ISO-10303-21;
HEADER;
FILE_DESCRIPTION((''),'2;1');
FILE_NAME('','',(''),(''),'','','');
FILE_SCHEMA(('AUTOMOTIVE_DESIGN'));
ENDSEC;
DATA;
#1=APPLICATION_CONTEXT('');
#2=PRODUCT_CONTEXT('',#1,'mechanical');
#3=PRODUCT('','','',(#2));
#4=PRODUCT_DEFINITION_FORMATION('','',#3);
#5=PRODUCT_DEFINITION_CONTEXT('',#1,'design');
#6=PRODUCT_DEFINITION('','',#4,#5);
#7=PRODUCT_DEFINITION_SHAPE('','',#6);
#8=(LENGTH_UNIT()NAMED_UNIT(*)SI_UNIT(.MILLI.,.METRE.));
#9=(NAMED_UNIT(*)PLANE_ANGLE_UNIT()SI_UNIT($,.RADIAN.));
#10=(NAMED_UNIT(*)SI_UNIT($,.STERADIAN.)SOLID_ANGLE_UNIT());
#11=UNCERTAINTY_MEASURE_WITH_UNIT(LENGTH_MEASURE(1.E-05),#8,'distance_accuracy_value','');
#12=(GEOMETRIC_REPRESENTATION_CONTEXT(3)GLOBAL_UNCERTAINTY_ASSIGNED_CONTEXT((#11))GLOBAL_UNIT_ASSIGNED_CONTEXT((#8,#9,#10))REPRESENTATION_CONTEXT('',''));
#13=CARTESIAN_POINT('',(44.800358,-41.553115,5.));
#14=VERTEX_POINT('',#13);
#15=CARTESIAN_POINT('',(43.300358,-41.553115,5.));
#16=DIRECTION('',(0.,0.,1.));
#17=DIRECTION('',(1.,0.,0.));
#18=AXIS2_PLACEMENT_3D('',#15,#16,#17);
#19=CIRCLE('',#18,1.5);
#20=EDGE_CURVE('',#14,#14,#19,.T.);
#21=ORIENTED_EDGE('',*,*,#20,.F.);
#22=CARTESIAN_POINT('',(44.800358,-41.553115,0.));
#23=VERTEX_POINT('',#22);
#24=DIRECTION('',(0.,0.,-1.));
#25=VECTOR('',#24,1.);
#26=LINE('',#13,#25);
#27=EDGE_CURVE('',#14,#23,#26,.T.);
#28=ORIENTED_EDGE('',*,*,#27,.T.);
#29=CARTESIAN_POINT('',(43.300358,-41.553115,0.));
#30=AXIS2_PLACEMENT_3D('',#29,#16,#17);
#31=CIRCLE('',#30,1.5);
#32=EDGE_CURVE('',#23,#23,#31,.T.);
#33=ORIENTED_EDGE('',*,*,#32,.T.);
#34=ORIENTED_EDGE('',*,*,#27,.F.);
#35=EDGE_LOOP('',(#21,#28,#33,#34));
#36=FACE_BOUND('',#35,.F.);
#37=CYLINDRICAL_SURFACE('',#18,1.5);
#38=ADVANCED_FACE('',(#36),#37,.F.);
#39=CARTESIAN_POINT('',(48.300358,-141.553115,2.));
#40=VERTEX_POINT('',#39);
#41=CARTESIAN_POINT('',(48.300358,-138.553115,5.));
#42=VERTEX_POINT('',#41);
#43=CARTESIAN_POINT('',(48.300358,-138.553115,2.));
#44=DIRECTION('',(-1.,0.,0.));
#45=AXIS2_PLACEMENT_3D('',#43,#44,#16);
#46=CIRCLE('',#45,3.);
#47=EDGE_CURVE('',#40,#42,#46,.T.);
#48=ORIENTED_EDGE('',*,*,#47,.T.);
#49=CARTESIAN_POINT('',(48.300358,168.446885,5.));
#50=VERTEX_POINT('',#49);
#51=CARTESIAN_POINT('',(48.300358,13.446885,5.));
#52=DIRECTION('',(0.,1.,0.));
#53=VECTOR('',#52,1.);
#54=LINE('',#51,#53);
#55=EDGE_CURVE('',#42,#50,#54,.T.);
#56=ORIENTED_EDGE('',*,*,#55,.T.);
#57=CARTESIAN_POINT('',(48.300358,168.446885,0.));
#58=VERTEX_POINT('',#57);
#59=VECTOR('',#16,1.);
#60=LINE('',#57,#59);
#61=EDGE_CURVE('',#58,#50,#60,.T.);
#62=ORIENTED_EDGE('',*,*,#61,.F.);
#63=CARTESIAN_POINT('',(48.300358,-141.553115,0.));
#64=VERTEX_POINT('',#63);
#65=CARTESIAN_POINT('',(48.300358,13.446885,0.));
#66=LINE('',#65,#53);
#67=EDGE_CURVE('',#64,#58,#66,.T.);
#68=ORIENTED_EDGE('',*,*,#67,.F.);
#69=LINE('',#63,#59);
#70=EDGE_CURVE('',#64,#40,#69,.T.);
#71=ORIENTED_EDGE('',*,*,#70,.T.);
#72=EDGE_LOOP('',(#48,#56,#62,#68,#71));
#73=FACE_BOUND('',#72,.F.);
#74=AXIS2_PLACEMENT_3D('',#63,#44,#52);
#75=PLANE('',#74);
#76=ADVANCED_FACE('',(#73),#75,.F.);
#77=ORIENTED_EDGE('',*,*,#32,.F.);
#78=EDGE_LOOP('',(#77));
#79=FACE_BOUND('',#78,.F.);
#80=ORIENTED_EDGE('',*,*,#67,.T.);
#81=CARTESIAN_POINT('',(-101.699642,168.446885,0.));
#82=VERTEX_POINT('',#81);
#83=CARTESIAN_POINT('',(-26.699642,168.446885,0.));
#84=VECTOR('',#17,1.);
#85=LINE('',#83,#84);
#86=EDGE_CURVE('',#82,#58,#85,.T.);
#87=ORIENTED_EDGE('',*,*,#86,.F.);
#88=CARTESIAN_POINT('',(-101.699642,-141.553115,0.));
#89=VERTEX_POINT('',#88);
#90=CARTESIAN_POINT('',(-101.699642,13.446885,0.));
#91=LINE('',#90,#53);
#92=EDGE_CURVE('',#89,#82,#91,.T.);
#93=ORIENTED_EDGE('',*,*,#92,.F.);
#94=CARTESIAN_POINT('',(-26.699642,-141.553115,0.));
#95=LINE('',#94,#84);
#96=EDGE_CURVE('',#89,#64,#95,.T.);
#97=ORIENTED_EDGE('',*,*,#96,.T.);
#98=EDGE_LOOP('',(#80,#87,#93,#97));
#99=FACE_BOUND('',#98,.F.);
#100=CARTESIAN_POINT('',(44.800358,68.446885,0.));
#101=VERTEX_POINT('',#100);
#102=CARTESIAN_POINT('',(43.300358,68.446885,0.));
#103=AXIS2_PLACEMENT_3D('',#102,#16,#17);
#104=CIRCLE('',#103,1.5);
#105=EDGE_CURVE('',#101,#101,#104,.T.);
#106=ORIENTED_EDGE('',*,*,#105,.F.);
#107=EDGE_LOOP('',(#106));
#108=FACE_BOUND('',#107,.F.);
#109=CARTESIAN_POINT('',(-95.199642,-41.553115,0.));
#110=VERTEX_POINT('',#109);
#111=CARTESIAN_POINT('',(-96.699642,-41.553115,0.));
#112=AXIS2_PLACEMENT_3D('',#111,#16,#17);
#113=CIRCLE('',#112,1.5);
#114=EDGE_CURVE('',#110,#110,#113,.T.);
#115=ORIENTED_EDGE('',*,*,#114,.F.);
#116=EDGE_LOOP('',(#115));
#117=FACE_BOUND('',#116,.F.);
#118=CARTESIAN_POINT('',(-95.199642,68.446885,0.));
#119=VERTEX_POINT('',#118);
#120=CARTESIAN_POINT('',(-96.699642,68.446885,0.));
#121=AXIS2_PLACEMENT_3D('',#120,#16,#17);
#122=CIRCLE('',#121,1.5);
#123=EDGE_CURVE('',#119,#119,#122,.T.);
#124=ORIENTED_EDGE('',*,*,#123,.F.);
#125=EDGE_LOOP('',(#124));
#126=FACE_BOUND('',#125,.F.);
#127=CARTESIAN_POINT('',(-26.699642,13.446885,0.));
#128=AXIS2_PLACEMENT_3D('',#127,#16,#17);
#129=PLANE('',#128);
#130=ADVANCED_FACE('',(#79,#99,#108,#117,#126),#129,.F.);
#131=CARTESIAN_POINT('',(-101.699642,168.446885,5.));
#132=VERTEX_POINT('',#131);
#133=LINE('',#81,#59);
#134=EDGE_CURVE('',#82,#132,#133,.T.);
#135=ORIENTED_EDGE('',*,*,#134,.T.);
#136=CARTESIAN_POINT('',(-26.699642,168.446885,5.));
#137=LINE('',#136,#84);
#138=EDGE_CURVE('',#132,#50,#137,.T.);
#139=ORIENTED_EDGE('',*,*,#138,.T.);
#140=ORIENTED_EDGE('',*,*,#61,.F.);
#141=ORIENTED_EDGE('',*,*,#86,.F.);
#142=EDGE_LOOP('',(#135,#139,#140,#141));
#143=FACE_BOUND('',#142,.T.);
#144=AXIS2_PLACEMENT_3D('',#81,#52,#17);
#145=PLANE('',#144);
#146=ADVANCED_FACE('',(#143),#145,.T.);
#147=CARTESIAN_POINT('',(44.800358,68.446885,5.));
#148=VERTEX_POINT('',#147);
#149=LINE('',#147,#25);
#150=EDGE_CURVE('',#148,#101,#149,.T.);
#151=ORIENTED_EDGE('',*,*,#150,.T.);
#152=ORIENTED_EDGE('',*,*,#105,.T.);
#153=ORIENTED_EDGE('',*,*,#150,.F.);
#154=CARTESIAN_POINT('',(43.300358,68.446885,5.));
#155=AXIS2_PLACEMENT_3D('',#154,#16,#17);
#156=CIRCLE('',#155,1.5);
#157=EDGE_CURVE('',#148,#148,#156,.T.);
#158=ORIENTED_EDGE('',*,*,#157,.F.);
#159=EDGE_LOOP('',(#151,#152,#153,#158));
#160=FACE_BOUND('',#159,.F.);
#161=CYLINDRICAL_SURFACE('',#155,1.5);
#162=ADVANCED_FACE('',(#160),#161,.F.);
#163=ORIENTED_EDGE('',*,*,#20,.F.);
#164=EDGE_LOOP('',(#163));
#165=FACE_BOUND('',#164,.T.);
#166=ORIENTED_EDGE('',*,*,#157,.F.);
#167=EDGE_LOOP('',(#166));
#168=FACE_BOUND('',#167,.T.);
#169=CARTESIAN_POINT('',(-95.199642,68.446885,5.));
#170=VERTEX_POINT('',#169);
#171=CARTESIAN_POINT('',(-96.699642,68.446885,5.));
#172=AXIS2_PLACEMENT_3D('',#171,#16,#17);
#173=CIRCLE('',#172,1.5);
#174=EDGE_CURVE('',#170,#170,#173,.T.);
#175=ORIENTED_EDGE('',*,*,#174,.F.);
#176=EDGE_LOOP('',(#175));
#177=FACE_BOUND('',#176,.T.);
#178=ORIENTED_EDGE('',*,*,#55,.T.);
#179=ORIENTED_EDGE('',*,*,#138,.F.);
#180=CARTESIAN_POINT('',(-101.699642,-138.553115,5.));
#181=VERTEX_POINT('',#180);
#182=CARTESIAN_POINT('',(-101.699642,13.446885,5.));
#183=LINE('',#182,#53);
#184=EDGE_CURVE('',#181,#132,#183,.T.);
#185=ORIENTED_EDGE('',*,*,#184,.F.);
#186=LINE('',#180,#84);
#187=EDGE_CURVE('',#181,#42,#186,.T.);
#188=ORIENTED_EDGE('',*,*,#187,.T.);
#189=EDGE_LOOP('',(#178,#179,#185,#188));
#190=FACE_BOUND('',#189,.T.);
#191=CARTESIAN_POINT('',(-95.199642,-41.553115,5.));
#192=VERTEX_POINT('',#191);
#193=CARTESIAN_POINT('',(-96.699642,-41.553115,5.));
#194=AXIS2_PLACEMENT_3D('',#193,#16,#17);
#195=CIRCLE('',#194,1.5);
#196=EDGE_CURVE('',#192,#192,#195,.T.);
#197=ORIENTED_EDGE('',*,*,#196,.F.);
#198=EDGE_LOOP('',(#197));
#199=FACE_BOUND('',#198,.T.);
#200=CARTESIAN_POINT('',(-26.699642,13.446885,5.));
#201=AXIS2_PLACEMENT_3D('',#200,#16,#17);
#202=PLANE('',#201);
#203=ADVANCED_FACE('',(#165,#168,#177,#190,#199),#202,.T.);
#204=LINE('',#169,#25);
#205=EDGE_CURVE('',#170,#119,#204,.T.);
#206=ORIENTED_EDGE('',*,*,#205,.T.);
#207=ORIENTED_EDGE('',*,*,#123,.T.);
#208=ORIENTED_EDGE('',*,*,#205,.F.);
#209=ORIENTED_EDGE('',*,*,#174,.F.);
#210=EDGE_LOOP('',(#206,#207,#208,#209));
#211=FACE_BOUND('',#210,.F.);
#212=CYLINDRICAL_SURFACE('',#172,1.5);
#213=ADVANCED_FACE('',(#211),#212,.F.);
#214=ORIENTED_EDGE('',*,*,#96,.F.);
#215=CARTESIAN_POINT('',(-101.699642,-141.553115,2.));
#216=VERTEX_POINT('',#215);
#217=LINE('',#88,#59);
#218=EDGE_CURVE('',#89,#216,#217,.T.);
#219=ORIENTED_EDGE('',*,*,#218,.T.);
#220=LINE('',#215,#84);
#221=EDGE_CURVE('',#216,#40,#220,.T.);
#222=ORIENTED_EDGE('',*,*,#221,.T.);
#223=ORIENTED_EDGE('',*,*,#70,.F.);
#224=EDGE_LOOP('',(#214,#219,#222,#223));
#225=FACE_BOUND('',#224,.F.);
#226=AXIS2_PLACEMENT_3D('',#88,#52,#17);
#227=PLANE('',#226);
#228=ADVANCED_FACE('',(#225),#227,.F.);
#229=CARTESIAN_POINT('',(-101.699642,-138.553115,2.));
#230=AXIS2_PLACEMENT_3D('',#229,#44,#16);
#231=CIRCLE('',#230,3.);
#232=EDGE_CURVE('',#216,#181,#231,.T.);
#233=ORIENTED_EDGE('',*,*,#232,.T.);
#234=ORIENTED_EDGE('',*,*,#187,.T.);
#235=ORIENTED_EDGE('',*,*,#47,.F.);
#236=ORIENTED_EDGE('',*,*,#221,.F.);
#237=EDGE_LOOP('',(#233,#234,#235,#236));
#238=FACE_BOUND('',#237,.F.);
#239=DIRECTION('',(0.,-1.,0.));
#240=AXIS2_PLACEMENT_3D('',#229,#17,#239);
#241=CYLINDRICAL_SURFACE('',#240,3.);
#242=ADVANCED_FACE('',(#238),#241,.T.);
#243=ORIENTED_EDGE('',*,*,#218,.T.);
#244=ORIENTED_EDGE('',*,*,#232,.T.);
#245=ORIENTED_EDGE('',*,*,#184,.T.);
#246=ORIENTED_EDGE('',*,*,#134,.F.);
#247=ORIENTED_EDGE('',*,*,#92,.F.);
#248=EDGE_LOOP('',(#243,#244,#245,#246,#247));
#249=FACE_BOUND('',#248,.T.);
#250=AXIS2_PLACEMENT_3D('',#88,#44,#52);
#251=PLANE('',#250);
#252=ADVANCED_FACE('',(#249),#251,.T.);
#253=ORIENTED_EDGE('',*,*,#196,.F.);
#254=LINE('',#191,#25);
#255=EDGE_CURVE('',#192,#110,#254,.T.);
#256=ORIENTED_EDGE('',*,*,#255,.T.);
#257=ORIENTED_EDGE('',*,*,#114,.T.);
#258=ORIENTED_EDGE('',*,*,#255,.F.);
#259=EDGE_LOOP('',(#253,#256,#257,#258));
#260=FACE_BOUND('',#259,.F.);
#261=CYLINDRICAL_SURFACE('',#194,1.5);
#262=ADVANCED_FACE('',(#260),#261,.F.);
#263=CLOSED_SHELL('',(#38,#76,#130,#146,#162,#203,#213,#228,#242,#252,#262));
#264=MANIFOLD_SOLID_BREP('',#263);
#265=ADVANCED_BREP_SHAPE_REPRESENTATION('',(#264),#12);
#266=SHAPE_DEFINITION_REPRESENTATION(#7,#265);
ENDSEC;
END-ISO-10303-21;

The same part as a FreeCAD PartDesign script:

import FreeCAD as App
import Part
import Sketcher
Q = App.Units.Quantity


def edges_at(feature, points):
    """Names of the edges that pass closest to the given points."""
    edges = feature.Shape.Edges
    near = lambda p: min(range(len(edges)), key=lambda i: edges[i].distToShape(Part.Vertex(*p))[0])
    return sorted({f"Edge{near(p) + 1}" for p in points})

doc = App.newDocument("Part")
body = doc.addObject("PartDesign::Body", "Body")

# Sketch on XY plane
sketch1 = doc.addObject("Sketcher::SketchObject", "Sketch")
body.addObject(sketch1)
sketch1.AttachmentSupport = (doc.XY_Plane, [""])
sketch1.MapMode = "FlatFace"
sketch1.addGeometry(Part.LineSegment(App.Vector(-101.699642, 168.446885, 0), App.Vector(-101.699642, -141.553115, 0)), False)
sketch1.addGeometry(Part.LineSegment(App.Vector(-101.699642, -141.553115, 0), App.Vector(48.300358, -141.553115, 0)), False)
sketch1.addGeometry(Part.LineSegment(App.Vector(48.300358, -141.553115, 0), App.Vector(48.300358, 168.446885, 0)), False)
sketch1.addGeometry(Part.LineSegment(App.Vector(48.300358, 168.446885, 0), App.Vector(-101.699642, 168.446885, 0)), False)
sketch1.addConstraint(Sketcher.Constraint("Coincident", 0, 2, 1, 1))
sketch1.addConstraint(Sketcher.Constraint("Coincident", 1, 2, 2, 1))
sketch1.addConstraint(Sketcher.Constraint("Coincident", 2, 2, 3, 1))
sketch1.addConstraint(Sketcher.Constraint("Coincident", 3, 2, 0, 1))
sketch1.addConstraint(Sketcher.Constraint("Vertical", 0))
sketch1.addConstraint(Sketcher.Constraint("Horizontal", 1))
sketch1.addConstraint(Sketcher.Constraint("Vertical", 2))
sketch1.addConstraint(Sketcher.Constraint("Horizontal", 3))
sketch1.addConstraint(Sketcher.Constraint("DistanceX", 1, 1, 1, 2, Q("150 mm")))
sketch1.addConstraint(Sketcher.Constraint("DistanceY", 0, 2, 0, 1, Q("310 mm")))
sketch1.addConstraint(Sketcher.Constraint("DistanceX", 0, 2, -1, 1, Q("101.699642 mm")))
sketch1.addConstraint(Sketcher.Constraint("DistanceY", 0, 2, -1, 1, Q("141.553115 mm")))
pad1 = doc.addObject("PartDesign::Pad", "Pad")
body.addObject(pad1)
pad1.Profile = sketch1
pad1.Length = 5

# Sketch on XY plane
sketch2 = doc.addObject("Sketcher::SketchObject", "Sketch001")
body.addObject(sketch2)
sketch2.AttachmentSupport = (doc.XY_Plane, [""])
sketch2.MapMode = "FlatFace"
sketch2.AttachmentOffset = App.Placement(App.Vector(0, 0, 5), App.Rotation())
sketch2.addGeometry(Part.Circle(App.Vector(-96.699642, 68.446885, 0), App.Vector(0, 0, 1), 1.5), False)
sketch2.addGeometry(Part.Circle(App.Vector(-96.699642, -41.553115, 0), App.Vector(0, 0, 1), 1.5), False)
sketch2.addGeometry(Part.Circle(App.Vector(43.300358, -41.553115, 0), App.Vector(0, 0, 1), 1.5), False)
sketch2.addGeometry(Part.Circle(App.Vector(43.300358, 68.446885, 0), App.Vector(0, 0, 1), 1.5), False)
sketch2.addConstraint(Sketcher.Constraint("Equal", 0, 1))
sketch2.addConstraint(Sketcher.Constraint("Equal", 1, 2))
sketch2.addConstraint(Sketcher.Constraint("Equal", 2, 3))
sketch2.addConstraint(Sketcher.Constraint("Horizontal", 1, 3, 2, 3))
sketch2.addConstraint(Sketcher.Constraint("Horizontal", 0, 3, 3, 3))
sketch2.addConstraint(Sketcher.Constraint("Vertical", 0, 3, 1, 3))
sketch2.addConstraint(Sketcher.Constraint("Vertical", 2, 3, 3, 3))
sketch2.addConstraint(Sketcher.Constraint("Diameter", 0, Q("3 mm")))
sketch2.addConstraint(Sketcher.Constraint("DistanceY", 1, 3, 0, 3, Q("110 mm")))
sketch2.addConstraint(Sketcher.Constraint("DistanceX", 1, 3, 2, 3, Q("140 mm")))
sketch2.addConstraint(Sketcher.Constraint("DistanceX", 0, 3, -1, 1, Q("96.699642 mm")))
sketch2.addConstraint(Sketcher.Constraint("DistanceY", -1, 1, 0, 3, Q("68.446885 mm")))
pocket1 = doc.addObject("PartDesign::Pocket", "Pocket")
body.addObject(pocket1)
pocket1.Profile = sketch2
pocket1.Type = "ThroughAll"
doc.recompute()

fillet = doc.addObject("PartDesign::Fillet", "Fillet")
body.addObject(fillet)
fillet.Base = (pocket1, edges_at(pocket1, [(-26.7, -141.553, 5)]))
fillet.Radius = 3

doc.recompute()
